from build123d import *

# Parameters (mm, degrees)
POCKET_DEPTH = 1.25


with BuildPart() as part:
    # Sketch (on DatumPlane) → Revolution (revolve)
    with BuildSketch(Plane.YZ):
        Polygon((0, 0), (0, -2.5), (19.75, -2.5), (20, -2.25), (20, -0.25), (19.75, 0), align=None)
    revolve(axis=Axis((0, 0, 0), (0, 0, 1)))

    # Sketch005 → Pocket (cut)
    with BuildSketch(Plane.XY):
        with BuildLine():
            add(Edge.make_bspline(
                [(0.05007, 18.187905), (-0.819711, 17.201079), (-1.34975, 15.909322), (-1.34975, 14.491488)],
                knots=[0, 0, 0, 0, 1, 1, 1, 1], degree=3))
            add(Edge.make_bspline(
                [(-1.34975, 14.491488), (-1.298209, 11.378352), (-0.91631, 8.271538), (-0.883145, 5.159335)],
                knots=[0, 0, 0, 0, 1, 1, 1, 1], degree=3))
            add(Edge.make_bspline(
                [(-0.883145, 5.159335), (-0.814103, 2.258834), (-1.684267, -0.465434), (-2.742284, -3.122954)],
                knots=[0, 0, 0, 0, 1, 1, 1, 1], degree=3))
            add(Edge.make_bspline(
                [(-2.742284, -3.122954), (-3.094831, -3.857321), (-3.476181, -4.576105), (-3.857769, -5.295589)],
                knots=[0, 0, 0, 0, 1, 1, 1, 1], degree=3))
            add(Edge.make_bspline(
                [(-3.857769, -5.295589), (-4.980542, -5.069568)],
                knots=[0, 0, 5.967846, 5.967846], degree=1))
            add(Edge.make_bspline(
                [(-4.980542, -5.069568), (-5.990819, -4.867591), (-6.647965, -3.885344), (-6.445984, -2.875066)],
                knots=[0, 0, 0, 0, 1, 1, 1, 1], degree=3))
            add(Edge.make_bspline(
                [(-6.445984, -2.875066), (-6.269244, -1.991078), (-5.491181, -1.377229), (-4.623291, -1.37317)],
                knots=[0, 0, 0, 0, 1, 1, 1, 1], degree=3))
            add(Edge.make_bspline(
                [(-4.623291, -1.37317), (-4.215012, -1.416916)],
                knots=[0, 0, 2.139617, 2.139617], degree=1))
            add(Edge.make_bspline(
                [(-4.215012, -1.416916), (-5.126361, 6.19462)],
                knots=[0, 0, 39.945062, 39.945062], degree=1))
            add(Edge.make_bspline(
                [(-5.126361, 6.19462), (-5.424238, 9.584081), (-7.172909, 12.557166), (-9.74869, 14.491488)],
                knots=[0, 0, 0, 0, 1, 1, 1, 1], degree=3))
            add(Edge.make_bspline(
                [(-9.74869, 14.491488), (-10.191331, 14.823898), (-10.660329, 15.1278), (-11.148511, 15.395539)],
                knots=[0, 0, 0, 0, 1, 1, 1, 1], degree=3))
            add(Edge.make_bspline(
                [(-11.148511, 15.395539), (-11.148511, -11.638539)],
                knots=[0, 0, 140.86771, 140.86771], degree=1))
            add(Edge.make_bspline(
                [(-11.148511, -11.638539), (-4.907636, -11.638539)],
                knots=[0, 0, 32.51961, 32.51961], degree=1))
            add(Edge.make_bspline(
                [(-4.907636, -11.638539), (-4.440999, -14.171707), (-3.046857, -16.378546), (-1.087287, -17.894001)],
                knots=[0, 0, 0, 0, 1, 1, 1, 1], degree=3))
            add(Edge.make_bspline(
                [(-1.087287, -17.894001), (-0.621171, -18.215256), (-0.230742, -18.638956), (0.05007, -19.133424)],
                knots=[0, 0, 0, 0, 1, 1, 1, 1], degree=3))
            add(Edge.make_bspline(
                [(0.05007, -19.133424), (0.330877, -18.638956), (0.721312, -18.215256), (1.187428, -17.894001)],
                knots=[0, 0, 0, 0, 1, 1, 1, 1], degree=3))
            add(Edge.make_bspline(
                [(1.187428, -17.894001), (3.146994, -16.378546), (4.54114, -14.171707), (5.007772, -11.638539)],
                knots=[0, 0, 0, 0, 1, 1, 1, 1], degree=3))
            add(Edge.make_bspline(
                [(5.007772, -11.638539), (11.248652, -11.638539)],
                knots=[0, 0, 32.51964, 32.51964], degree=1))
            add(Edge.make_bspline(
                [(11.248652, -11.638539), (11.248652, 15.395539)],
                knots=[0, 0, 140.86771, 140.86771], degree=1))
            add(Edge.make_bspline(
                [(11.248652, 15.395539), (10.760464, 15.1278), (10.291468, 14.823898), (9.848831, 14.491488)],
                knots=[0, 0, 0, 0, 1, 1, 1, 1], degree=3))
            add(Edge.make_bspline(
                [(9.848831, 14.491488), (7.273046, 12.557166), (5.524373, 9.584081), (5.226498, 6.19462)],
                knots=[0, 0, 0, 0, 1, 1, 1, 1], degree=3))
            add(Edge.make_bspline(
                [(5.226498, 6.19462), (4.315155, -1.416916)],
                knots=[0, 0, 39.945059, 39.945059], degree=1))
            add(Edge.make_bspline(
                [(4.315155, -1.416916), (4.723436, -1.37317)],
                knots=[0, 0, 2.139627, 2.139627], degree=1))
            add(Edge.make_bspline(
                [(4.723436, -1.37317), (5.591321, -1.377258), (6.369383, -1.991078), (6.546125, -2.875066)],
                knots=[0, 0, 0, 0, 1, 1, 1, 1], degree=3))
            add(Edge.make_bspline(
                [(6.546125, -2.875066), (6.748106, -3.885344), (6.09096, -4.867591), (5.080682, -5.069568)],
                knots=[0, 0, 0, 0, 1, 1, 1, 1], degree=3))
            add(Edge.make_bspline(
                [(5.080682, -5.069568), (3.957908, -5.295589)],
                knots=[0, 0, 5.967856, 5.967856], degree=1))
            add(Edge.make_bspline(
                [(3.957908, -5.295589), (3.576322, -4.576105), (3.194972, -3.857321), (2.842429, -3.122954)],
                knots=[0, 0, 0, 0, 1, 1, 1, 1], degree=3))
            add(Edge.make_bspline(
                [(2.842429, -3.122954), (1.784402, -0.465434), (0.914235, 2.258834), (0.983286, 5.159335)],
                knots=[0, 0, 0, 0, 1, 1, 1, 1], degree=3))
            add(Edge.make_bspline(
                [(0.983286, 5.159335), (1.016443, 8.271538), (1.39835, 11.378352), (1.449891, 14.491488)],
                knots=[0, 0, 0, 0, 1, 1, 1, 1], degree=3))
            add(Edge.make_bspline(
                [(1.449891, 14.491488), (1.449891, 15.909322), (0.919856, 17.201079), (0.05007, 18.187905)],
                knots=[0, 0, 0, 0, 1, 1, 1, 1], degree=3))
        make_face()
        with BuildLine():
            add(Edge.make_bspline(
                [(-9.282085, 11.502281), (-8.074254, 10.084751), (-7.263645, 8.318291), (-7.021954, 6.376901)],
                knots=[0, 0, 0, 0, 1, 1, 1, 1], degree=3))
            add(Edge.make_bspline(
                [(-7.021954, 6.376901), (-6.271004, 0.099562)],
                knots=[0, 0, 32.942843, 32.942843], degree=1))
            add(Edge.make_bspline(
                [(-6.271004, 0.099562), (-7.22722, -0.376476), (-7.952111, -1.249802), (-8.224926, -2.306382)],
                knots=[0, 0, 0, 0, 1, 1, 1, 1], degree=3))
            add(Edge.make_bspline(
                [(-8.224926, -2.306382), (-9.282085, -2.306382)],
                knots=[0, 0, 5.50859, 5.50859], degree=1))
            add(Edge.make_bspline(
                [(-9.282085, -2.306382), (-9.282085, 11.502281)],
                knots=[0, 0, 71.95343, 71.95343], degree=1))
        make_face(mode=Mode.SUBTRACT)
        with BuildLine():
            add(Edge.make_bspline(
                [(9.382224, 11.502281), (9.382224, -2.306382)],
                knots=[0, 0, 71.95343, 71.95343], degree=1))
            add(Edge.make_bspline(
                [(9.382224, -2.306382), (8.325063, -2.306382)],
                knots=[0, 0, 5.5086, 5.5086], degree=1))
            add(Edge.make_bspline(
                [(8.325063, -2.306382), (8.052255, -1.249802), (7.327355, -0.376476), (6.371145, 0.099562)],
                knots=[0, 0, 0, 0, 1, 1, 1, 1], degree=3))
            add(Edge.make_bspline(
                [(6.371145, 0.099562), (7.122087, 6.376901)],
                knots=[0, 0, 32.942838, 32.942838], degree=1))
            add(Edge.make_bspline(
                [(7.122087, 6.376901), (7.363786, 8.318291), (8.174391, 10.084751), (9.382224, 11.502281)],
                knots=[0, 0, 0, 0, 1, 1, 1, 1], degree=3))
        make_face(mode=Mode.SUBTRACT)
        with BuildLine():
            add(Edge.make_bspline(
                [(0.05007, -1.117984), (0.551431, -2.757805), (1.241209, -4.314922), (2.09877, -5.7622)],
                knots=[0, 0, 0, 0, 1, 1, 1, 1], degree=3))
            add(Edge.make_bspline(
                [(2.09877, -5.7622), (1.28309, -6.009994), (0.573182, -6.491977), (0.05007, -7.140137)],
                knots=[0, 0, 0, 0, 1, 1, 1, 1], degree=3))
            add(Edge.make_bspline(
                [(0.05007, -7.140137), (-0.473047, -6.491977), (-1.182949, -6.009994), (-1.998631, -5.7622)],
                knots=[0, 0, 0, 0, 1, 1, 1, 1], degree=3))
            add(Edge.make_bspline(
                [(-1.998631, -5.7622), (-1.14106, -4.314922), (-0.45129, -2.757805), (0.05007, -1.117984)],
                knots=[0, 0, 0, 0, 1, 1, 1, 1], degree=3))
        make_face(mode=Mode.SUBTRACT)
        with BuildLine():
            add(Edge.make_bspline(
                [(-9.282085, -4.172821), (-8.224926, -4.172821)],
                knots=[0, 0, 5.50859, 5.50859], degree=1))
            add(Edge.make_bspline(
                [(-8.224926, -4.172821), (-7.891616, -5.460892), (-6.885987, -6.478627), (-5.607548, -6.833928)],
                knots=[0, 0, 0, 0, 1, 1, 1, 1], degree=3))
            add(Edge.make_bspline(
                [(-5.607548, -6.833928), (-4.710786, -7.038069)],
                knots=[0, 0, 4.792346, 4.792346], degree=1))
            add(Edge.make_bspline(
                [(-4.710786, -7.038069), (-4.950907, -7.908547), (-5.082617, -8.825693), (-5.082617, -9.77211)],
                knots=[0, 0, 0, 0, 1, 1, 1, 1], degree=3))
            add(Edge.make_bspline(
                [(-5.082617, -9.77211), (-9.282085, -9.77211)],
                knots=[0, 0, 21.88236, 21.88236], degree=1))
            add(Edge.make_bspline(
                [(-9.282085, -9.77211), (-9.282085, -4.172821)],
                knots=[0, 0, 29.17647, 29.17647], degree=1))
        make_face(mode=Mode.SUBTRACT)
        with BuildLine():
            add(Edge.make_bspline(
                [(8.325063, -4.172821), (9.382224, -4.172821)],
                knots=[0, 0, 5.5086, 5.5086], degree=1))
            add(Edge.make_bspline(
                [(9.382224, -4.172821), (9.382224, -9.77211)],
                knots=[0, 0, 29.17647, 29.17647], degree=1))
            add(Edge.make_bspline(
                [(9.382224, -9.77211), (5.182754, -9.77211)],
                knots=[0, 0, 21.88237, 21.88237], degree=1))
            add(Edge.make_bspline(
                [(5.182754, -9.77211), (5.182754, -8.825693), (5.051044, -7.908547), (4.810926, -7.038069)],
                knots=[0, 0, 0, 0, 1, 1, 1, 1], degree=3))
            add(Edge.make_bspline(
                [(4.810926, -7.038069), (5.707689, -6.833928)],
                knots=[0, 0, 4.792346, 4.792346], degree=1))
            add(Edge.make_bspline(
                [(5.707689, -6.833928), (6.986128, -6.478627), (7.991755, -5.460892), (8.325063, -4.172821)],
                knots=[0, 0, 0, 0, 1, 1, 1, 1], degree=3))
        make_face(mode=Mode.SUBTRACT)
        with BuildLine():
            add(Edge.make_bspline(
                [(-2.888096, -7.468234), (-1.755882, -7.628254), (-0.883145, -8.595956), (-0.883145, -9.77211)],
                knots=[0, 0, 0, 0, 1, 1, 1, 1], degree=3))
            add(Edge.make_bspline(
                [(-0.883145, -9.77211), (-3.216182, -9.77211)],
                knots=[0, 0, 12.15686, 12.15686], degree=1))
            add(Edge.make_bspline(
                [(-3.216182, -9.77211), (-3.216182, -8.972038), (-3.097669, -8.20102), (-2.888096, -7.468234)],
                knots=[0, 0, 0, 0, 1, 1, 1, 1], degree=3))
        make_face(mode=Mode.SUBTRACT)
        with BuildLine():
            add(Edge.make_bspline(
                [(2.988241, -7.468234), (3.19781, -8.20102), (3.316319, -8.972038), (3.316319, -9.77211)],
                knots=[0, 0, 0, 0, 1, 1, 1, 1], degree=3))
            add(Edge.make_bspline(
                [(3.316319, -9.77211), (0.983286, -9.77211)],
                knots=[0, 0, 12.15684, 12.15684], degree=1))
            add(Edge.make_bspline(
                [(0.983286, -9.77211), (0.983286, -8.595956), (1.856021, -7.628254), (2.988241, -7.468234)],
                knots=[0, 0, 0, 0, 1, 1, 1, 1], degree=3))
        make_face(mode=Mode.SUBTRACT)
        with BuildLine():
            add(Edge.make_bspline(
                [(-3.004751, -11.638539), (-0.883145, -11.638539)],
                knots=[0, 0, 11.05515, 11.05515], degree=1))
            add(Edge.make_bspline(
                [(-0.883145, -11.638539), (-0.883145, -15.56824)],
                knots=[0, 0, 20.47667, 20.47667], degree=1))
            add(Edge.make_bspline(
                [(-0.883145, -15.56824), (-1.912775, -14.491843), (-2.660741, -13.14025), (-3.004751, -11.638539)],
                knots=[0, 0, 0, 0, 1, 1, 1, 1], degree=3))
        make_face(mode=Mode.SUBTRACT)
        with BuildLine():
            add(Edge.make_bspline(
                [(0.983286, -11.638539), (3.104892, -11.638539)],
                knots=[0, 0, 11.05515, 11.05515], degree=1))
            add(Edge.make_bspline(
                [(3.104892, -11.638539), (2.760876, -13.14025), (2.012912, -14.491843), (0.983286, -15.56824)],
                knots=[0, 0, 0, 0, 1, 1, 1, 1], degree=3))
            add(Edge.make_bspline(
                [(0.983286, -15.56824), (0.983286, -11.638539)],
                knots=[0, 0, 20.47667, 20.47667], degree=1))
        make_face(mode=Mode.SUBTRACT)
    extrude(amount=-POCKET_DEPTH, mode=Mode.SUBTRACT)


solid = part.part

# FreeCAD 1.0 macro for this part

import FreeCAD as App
import Part
import Sketcher

V = App.Vector
Q = App.Units.Quantity


def add_polygon(sketch, points):
    """Adds a closed chain of lines whose ends are joined by coincident constraints."""
    first, n = sketch.GeometryCount, len(points)
    for a, b in zip(points, points[1:] + points[:1]):
        sketch.addGeometry(Part.LineSegment(App.Vector(*a, 0), App.Vector(*b, 0)), False)
    for i in range(n):
        sketch.addConstraint(Sketcher.Constraint("Coincident", first + i, 2, first + (i + 1) % n, 1))

doc = App.newDocument("Part")
params = doc.addObject("Spreadsheet::Sheet", "Params")
for row, (alias, value) in enumerate([
    ("sketch1_height", "2 mm"),
    ("sketch1_height2", "2.5 mm"),
    ("revolution_angle", "360 deg"),
    ("pocket1_length", "1.25 mm"),
], start=1):
    params.set(f"A{row}", alias)
    params.set(f"B{row}", "=" + value)
    params.setAlias(f"B{row}", alias)

body = doc.addObject("PartDesign::Body", "Body")

sketch1 = body.newObject("Sketcher::SketchObject", "Sketch")
sketch1.AttachmentSupport = (doc.getObject("YZ_Plane"), [""])
sketch1.MapMode = "FlatFace"
add_polygon(sketch1, [(0, 0), (0, -2.5), (19.75, -2.5), (20, -2.25), (20, -0.25), (19.75, 0)])
sketch1.addConstraint(Sketcher.Constraint("Vertical", 0))
sketch1.addConstraint(Sketcher.Constraint("Horizontal", 1))
sketch1.addConstraint(Sketcher.Constraint("Vertical", 3))
sketch1.addConstraint(Sketcher.Constraint("Horizontal", 5))
sketch1.addConstraint(Sketcher.Constraint("Coincident", 5, 2, -1, 1))
sketch1.addConstraint(Sketcher.Constraint("Perpendicular", 2, 4))
sketch1.addConstraint(Sketcher.Constraint("Vertical", 1, 2, 4, 2))
sketch1.addConstraint(Sketcher.Constraint("Equal", 2, 4))
sketch1.addConstraint(Sketcher.Constraint("DistanceY", 3, 1, 3, 2, Q("2 mm")))
sketch1.addConstraint(Sketcher.Constraint("DistanceY", 0, 2, 0, 1, Q("2.5 mm")))
sketch1.addConstraint(Sketcher.Constraint("DistanceX", -1, 1, 2, 2, Q("20 mm")))
sketch1.setExpression("Constraints[14]", "Params.sketch1_height")
sketch1.setExpression("Constraints[15]", "Params.sketch1_height2")
revolution = body.newObject("PartDesign::Revolution", "Revolution")
revolution.Profile = sketch1
revolution.ReferenceAxis = (sketch1, ["V_Axis"])
revolution.setExpression("Angle", "Params.revolution_angle")

sketch2 = body.newObject("Sketcher::SketchObject", "Sketch001")
sketch2.AttachmentSupport = (doc.getObject("XY_Plane"), [""])
sketch2.MapMode = "FlatFace"
sketch2.addGeometry(Part.BSplineCurve([V(0.05007, 18.187905, 0), V(-0.819711, 17.201079, 0), V(-1.34975, 15.909322, 0), V(-1.34975, 14.491488, 0)], [4, 4], [0, 1], False, 3, [1, 1, 1, 1], False), False)
sketch2.addGeometry(Part.BSplineCurve([V(-1.34975, 14.491488, 0), V(-1.298209, 11.378352, 0), V(-0.91631, 8.271538, 0), V(-0.883145, 5.159335, 0)], [4, 4], [0, 1], False, 3, [1, 1, 1, 1], False), False)
sketch2.addGeometry(Part.BSplineCurve([V(-0.883145, 5.159335, 0), V(-0.814103, 2.258834, 0), V(-1.684267, -0.465434, 0), V(-2.742284, -3.122954, 0)], [4, 4], [0, 1], False, 3, [1, 1, 1, 1], False), False)
sketch2.addGeometry(Part.BSplineCurve([V(-2.742284, -3.122954, 0), V(-3.094831, -3.857321, 0), V(-3.476181, -4.576105, 0), V(-3.857769, -5.295589, 0)], [4, 4], [0, 1], False, 3, [1, 1, 1, 1], False), False)
sketch2.addGeometry(Part.BSplineCurve([V(-3.857769, -5.295589, 0), V(-4.980542, -5.069568, 0)], [2, 2], [0, 5.967846], False, 1, [1, 1], False), False)
sketch2.addGeometry(Part.BSplineCurve([V(-4.980542, -5.069568, 0), V(-5.990819, -4.867591, 0), V(-6.647965, -3.885344, 0), V(-6.445984, -2.875066, 0)], [4, 4], [0, 1], False, 3, [1, 1, 1, 1], False), False)
sketch2.addGeometry(Part.BSplineCurve([V(-6.445984, -2.875066, 0), V(-6.269244, -1.991078, 0), V(-5.491181, -1.377229, 0), V(-4.623291, -1.37317, 0)], [4, 4], [0, 1], False, 3, [1, 1, 1, 1], False), False)
sketch2.addGeometry(Part.BSplineCurve([V(-4.623291, -1.37317, 0), V(-4.215012, -1.416916, 0)], [2, 2], [0, 2.139617], False, 1, [1, 1], False), False)
sketch2.addGeometry(Part.BSplineCurve([V(-4.215012, -1.416916, 0), V(-5.126361, 6.19462, 0)], [2, 2], [0, 39.945062], False, 1, [1, 1], False), False)
sketch2.addGeometry(Part.BSplineCurve([V(-5.126361, 6.19462, 0), V(-5.424238, 9.584081, 0), V(-7.172909, 12.557166, 0), V(-9.74869, 14.491488, 0)], [4, 4], [0, 1], False, 3, [1, 1, 1, 1], False), False)
sketch2.addGeometry(Part.BSplineCurve([V(-9.74869, 14.491488, 0), V(-10.191331, 14.823898, 0), V(-10.660329, 15.1278, 0), V(-11.148511, 15.395539, 0)], [4, 4], [0, 1], False, 3, [1, 1, 1, 1], False), False)
sketch2.addGeometry(Part.BSplineCurve([V(-11.148511, 15.395539, 0), V(-11.148511, -11.638539, 0)], [2, 2], [0, 140.86771], False, 1, [1, 1], False), False)
sketch2.addGeometry(Part.BSplineCurve([V(-11.148511, -11.638539, 0), V(-4.907636, -11.638539, 0)], [2, 2], [0, 32.51961], False, 1, [1, 1], False), False)
sketch2.addGeometry(Part.BSplineCurve([V(-4.907636, -11.638539, 0), V(-4.440999, -14.171707, 0), V(-3.046857, -16.378546, 0), V(-1.087287, -17.894001, 0)], [4, 4], [0, 1], False, 3, [1, 1, 1, 1], False), False)
sketch2.addGeometry(Part.BSplineCurve([V(-1.087287, -17.894001, 0), V(-0.621171, -18.215256, 0), V(-0.230742, -18.638956, 0), V(0.05007, -19.133424, 0)], [4, 4], [0, 1], False, 3, [1, 1, 1, 1], False), False)
sketch2.addGeometry(Part.BSplineCurve([V(0.05007, -19.133424, 0), V(0.330877, -18.638956, 0), V(0.721312, -18.215256, 0), V(1.187428, -17.894001, 0)], [4, 4], [0, 1], False, 3, [1, 1, 1, 1], False), False)
sketch2.addGeometry(Part.BSplineCurve([V(1.187428, -17.894001, 0), V(3.146994, -16.378546, 0), V(4.54114, -14.171707, 0), V(5.007772, -11.638539, 0)], [4, 4], [0, 1], False, 3, [1, 1, 1, 1], False), False)
sketch2.addGeometry(Part.BSplineCurve([V(5.007772, -11.638539, 0), V(11.248652, -11.638539, 0)], [2, 2], [0, 32.51964], False, 1, [1, 1], False), False)
sketch2.addGeometry(Part.BSplineCurve([V(11.248652, -11.638539, 0), V(11.248652, 15.395539, 0)], [2, 2], [0, 140.86771], False, 1, [1, 1], False), False)
sketch2.addGeometry(Part.BSplineCurve([V(11.248652, 15.395539, 0), V(10.760464, 15.1278, 0), V(10.291468, 14.823898, 0), V(9.848831, 14.491488, 0)], [4, 4], [0, 1], False, 3, [1, 1, 1, 1], False), False)
sketch2.addGeometry(Part.BSplineCurve([V(9.848831, 14.491488, 0), V(7.273046, 12.557166, 0), V(5.524373, 9.584081, 0), V(5.226498, 6.19462, 0)], [4, 4], [0, 1], False, 3, [1, 1, 1, 1], False), False)
sketch2.addGeometry(Part.BSplineCurve([V(5.226498, 6.19462, 0), V(4.315155, -1.416916, 0)], [2, 2], [0, 39.945059], False, 1, [1, 1], False), False)
sketch2.addGeometry(Part.BSplineCurve([V(4.315155, -1.416916, 0), V(4.723436, -1.37317, 0)], [2, 2], [0, 2.139627], False, 1, [1, 1], False), False)
sketch2.addGeometry(Part.BSplineCurve([V(4.723436, -1.37317, 0), V(5.591321, -1.377258, 0), V(6.369383, -1.991078, 0), V(6.546125, -2.875066, 0)], [4, 4], [0, 1], False, 3, [1, 1, 1, 1], False), False)
sketch2.addGeometry(Part.BSplineCurve([V(6.546125, -2.875066, 0), V(6.748106, -3.885344, 0), V(6.09096, -4.867591, 0), V(5.080682, -5.069568, 0)], [4, 4], [0, 1], False, 3, [1, 1, 1, 1], False), False)
sketch2.addGeometry(Part.BSplineCurve([V(5.080682, -5.069568, 0), V(3.957908, -5.295589, 0)], [2, 2], [0, 5.967856], False, 1, [1, 1], False), False)
sketch2.addGeometry(Part.BSplineCurve([V(3.957908, -5.295589, 0), V(3.576322, -4.576105, 0), V(3.194972, -3.857321, 0), V(2.842429, -3.122954, 0)], [4, 4], [0, 1], False, 3, [1, 1, 1, 1], False), False)
sketch2.addGeometry(Part.BSplineCurve([V(2.842429, -3.122954, 0), V(1.784402, -0.465434, 0), V(0.914235, 2.258834, 0), V(0.983286, 5.159335, 0)], [4, 4], [0, 1], False, 3, [1, 1, 1, 1], False), False)
sketch2.addGeometry(Part.BSplineCurve([V(0.983286, 5.159335, 0), V(1.016443, 8.271538, 0), V(1.39835, 11.378352, 0), V(1.449891, 14.491488, 0)], [4, 4], [0, 1], False, 3, [1, 1, 1, 1], False), False)
sketch2.addGeometry(Part.BSplineCurve([V(1.449891, 14.491488, 0), V(1.449891, 15.909322, 0), V(0.919856, 17.201079, 0), V(0.05007, 18.187905, 0)], [4, 4], [0, 1], False, 3, [1, 1, 1, 1], False), False)
sketch2.addGeometry(Part.BSplineCurve([V(-0.883145, -15.56824, 0), V(-1.912775, -14.491843, 0), V(-2.660741, -13.14025, 0), V(-3.004751, -11.638539, 0)], [4, 4], [0, 1], False, 3, [1, 1, 1, 1], False), False)
sketch2.addGeometry(Part.BSplineCurve([V(-3.004751, -11.638539, 0), V(-0.883145, -11.638539, 0)], [2, 2], [0, 11.05515], False, 1, [1, 1], False), False)
sketch2.addGeometry(Part.BSplineCurve([V(-0.883145, -11.638539, 0), V(-0.883145, -15.56824, 0)], [2, 2], [0, 20.47667], False, 1, [1, 1], False), False)
sketch2.addGeometry(Part.BSplineCurve([V(-9.282085, -9.77211, 0), V(-9.282085, -4.172821, 0)], [2, 2], [0, 29.17647], False, 1, [1, 1], False), False)
sketch2.addGeometry(Part.BSplineCurve([V(-9.282085, -4.172821, 0), V(-8.224926, -4.172821, 0)], [2, 2], [0, 5.50859], False, 1, [1, 1], False), False)
sketch2.addGeometry(Part.BSplineCurve([V(-8.224926, -4.172821, 0), V(-7.891616, -5.460892, 0), V(-6.885987, -6.478627, 0), V(-5.607548, -6.833928, 0)], [4, 4], [0, 1], False, 3, [1, 1, 1, 1], False), False)
sketch2.addGeometry(Part.BSplineCurve([V(-5.607548, -6.833928, 0), V(-4.710786, -7.038069, 0)], [2, 2], [0, 4.792346], False, 1, [1, 1], False), False)
sketch2.addGeometry(Part.BSplineCurve([V(-4.710786, -7.038069, 0), V(-4.950907, -7.908547, 0), V(-5.082617, -8.825693, 0), V(-5.082617, -9.77211, 0)], [4, 4], [0, 1], False, 3, [1, 1, 1, 1], False), False)
sketch2.addGeometry(Part.BSplineCurve([V(-5.082617, -9.77211, 0), V(-9.282085, -9.77211, 0)], [2, 2], [0, 21.88236], False, 1, [1, 1], False), False)
sketch2.addGeometry(Part.BSplineCurve([V(-3.216182, -9.77211, 0), V(-3.216182, -8.972038, 0), V(-3.097669, -8.20102, 0), V(-2.888096, -7.468234, 0)], [4, 4], [0, 1], False, 3, [1, 1, 1, 1], False), False)
sketch2.addGeometry(Part.BSplineCurve([V(-2.888096, -7.468234, 0), V(-1.755882, -7.628254, 0), V(-0.883145, -8.595956, 0), V(-0.883145, -9.77211, 0)], [4, 4], [0, 1], False, 3, [1, 1, 1, 1], False), False)
sketch2.addGeometry(Part.BSplineCurve([V(-0.883145, -9.77211, 0), V(-3.216182, -9.77211, 0)], [2, 2], [0, 12.15686], False, 1, [1, 1], False), False)
sketch2.addGeometry(Part.BSplineCurve([V(-1.998631, -5.7622, 0), V(-1.14106, -4.314922, 0), V(-0.45129, -2.757805, 0), V(0.05007, -1.117984, 0)], [4, 4], [0, 1], False, 3, [1, 1, 1, 1], False), False)
sketch2.addGeometry(Part.BSplineCurve([V(0.05007, -1.117984, 0), V(0.551431, -2.757805, 0), V(1.241209, -4.314922, 0), V(2.09877, -5.7622, 0)], [4, 4], [0, 1], False, 3, [1, 1, 1, 1], False), False)
sketch2.addGeometry(Part.BSplineCurve([V(2.09877, -5.7622, 0), V(1.28309, -6.009994, 0), V(0.573182, -6.491977, 0), V(0.05007, -7.140137, 0)], [4, 4], [0, 1], False, 3, [1, 1, 1, 1], False), False)
sketch2.addGeometry(Part.BSplineCurve([V(0.05007, -7.140137, 0), V(-0.473047, -6.491977, 0), V(-1.182949, -6.009994, 0), V(-1.998631, -5.7622, 0)], [4, 4], [0, 1], False, 3, [1, 1, 1, 1], False), False)
sketch2.addGeometry(Part.BSplineCurve([V(0.983286, -15.56824, 0), V(0.983286, -11.638539, 0)], [2, 2], [0, 20.47667], False, 1, [1, 1], False), False)
sketch2.addGeometry(Part.BSplineCurve([V(0.983286, -11.638539, 0), V(3.104892, -11.638539, 0)], [2, 2], [0, 11.05515], False, 1, [1, 1], False), False)
sketch2.addGeometry(Part.BSplineCurve([V(3.104892, -11.638539, 0), V(2.760876, -13.14025, 0), V(2.012912, -14.491843, 0), V(0.983286, -15.56824, 0)], [4, 4], [0, 1], False, 3, [1, 1, 1, 1], False), False)
sketch2.addGeometry(Part.BSplineCurve([V(0.983286, -9.77211, 0), V(0.983286, -8.595956, 0), V(1.856021, -7.628254, 0), V(2.988241, -7.468234, 0)], [4, 4], [0, 1], False, 3, [1, 1, 1, 1], False), False)
sketch2.addGeometry(Part.BSplineCurve([V(2.988241, -7.468234, 0), V(3.19781, -8.20102, 0), V(3.316319, -8.972038, 0), V(3.316319, -9.77211, 0)], [4, 4], [0, 1], False, 3, [1, 1, 1, 1], False), False)
sketch2.addGeometry(Part.BSplineCurve([V(3.316319, -9.77211, 0), V(0.983286, -9.77211, 0)], [2, 2], [0, 12.15684], False, 1, [1, 1], False), False)
sketch2.addGeometry(Part.BSplineCurve([V(5.707689, -6.833928, 0), V(6.986128, -6.478627, 0), V(7.991755, -5.460892, 0), V(8.325063, -4.172821, 0)], [4, 4], [0, 1], False, 3, [1, 1, 1, 1], False), False)
sketch2.addGeometry(Part.BSplineCurve([V(8.325063, -4.172821, 0), V(9.382224, -4.172821, 0)], [2, 2], [0, 5.5086], False, 1, [1, 1], False), False)
sketch2.addGeometry(Part.BSplineCurve([V(9.382224, -4.172821, 0), V(9.382224, -9.77211, 0)], [2, 2], [0, 29.17647], False, 1, [1, 1], False), False)
sketch2.addGeometry(Part.BSplineCurve([V(9.382224, -9.77211, 0), V(5.182754, -9.77211, 0)], [2, 2], [0, 21.88237], False, 1, [1, 1], False), False)
sketch2.addGeometry(Part.BSplineCurve([V(5.182754, -9.77211, 0), V(5.182754, -8.825693, 0), V(5.051044, -7.908547, 0), V(4.810926, -7.038069, 0)], [4, 4], [0, 1], False, 3, [1, 1, 1, 1], False), False)
sketch2.addGeometry(Part.BSplineCurve([V(4.810926, -7.038069, 0), V(5.707689, -6.833928, 0)], [2, 2], [0, 4.792346], False, 1, [1, 1], False), False)
sketch2.addGeometry(Part.BSplineCurve([V(-9.282085, -2.306382, 0), V(-9.282085, 11.502281, 0)], [2, 2], [0, 71.95343], False, 1, [1, 1], False), False)
sketch2.addGeometry(Part.BSplineCurve([V(-9.282085, 11.502281, 0), V(-8.074254, 10.084751, 0), V(-7.263645, 8.318291, 0), V(-7.021954, 6.376901, 0)], [4, 4], [0, 1], False, 3, [1, 1, 1, 1], False), False)
sketch2.addGeometry(Part.BSplineCurve([V(-7.021954, 6.376901, 0), V(-6.271004, 0.099562, 0)], [2, 2], [0, 32.942843], False, 1, [1, 1], False), False)
sketch2.addGeometry(Part.BSplineCurve([V(-6.271004, 0.099562, 0), V(-7.22722, -0.376476, 0), V(-7.952111, -1.249802, 0), V(-8.224926, -2.306382, 0)], [4, 4], [0, 1], False, 3, [1, 1, 1, 1], False), False)
sketch2.addGeometry(Part.BSplineCurve([V(-8.224926, -2.306382, 0), V(-9.282085, -2.306382, 0)], [2, 2], [0, 5.50859], False, 1, [1, 1], False), False)
sketch2.addGeometry(Part.BSplineCurve([V(7.122087, 6.376901, 0), V(7.363786, 8.318291, 0), V(8.174391, 10.084751, 0), V(9.382224, 11.502281, 0)], [4, 4], [0, 1], False, 3, [1, 1, 1, 1], False), False)
sketch2.addGeometry(Part.BSplineCurve([V(9.382224, 11.502281, 0), V(9.382224, -2.306382, 0)], [2, 2], [0, 71.95343], False, 1, [1, 1], False), False)
sketch2.addGeometry(Part.BSplineCurve([V(9.382224, -2.306382, 0), V(8.325063, -2.306382, 0)], [2, 2], [0, 5.5086], False, 1, [1, 1], False), False)
sketch2.addGeometry(Part.BSplineCurve([V(8.325063, -2.306382, 0), V(8.052255, -1.249802, 0), V(7.327355, -0.376476, 0), V(6.371145, 0.099562, 0)], [4, 4], [0, 1], False, 3, [1, 1, 1, 1], False), False)
sketch2.addGeometry(Part.BSplineCurve([V(6.371145, 0.099562, 0), V(7.122087, 6.376901, 0)], [2, 2], [0, 32.942838], False, 1, [1, 1], False), False)
sketch2.addConstraint(Sketcher.Constraint("Block", 0))
sketch2.addConstraint(Sketcher.Constraint("Block", 1))
sketch2.addConstraint(Sketcher.Constraint("Block", 2))
sketch2.addConstraint(Sketcher.Constraint("Block", 3))
sketch2.addConstraint(Sketcher.Constraint("Block", 4))
sketch2.addConstraint(Sketcher.Constraint("Block", 5))
sketch2.addConstraint(Sketcher.Constraint("Block", 6))
sketch2.addConstraint(Sketcher.Constraint("Block", 7))
sketch2.addConstraint(Sketcher.Constraint("Block", 8))
sketch2.addConstraint(Sketcher.Constraint("Block", 9))
sketch2.addConstraint(Sketcher.Constraint("Block", 10))
sketch2.addConstraint(Sketcher.Constraint("Block", 11))
sketch2.addConstraint(Sketcher.Constraint("Block", 12))
sketch2.addConstraint(Sketcher.Constraint("Block", 13))
sketch2.addConstraint(Sketcher.Constraint("Block", 14))
sketch2.addConstraint(Sketcher.Constraint("Block", 15))
sketch2.addConstraint(Sketcher.Constraint("Block", 16))
sketch2.addConstraint(Sketcher.Constraint("Block", 17))
sketch2.addConstraint(Sketcher.Constraint("Block", 18))
sketch2.addConstraint(Sketcher.Constraint("Block", 19))
sketch2.addConstraint(Sketcher.Constraint("Block", 20))
sketch2.addConstraint(Sketcher.Constraint("Block", 21))
sketch2.addConstraint(Sketcher.Constraint("Block", 22))
sketch2.addConstraint(Sketcher.Constraint("Block", 23))
sketch2.addConstraint(Sketcher.Constraint("Block", 24))
sketch2.addConstraint(Sketcher.Constraint("Block", 25))
sketch2.addConstraint(Sketcher.Constraint("Block", 26))
sketch2.addConstraint(Sketcher.Constraint("Block", 27))
sketch2.addConstraint(Sketcher.Constraint("Block", 28))
sketch2.addConstraint(Sketcher.Constraint("Block", 29))
sketch2.addConstraint(Sketcher.Constraint("Block", 30))
sketch2.addConstraint(Sketcher.Constraint("Block", 31))
sketch2.addConstraint(Sketcher.Constraint("Block", 32))
sketch2.addConstraint(Sketcher.Constraint("Block", 33))
sketch2.addConstraint(Sketcher.Constraint("Block", 34))
sketch2.addConstraint(Sketcher.Constraint("Block", 35))
sketch2.addConstraint(Sketcher.Constraint("Block", 36))
sketch2.addConstraint(Sketcher.Constraint("Block", 37))
sketch2.addConstraint(Sketcher.Constraint("Block", 38))
sketch2.addConstraint(Sketcher.Constraint("Block", 39))
sketch2.addConstraint(Sketcher.Constraint("Block", 40))
sketch2.addConstraint(Sketcher.Constraint("Block", 41))
sketch2.addConstraint(Sketcher.Constraint("Block", 42))
sketch2.addConstraint(Sketcher.Constraint("Block", 43))
sketch2.addConstraint(Sketcher.Constraint("Block", 44))
sketch2.addConstraint(Sketcher.Constraint("Block", 45))
sketch2.addConstraint(Sketcher.Constraint("Block", 46))
sketch2.addConstraint(Sketcher.Constraint("Block", 47))
sketch2.addConstraint(Sketcher.Constraint("Block", 48))
sketch2.addConstraint(Sketcher.Constraint("Block", 49))
sketch2.addConstraint(Sketcher.Constraint("Block", 50))
sketch2.addConstraint(Sketcher.Constraint("Block", 51))
sketch2.addConstraint(Sketcher.Constraint("Block", 52))
sketch2.addConstraint(Sketcher.Constraint("Block", 53))
sketch2.addConstraint(Sketcher.Constraint("Block", 54))
sketch2.addConstraint(Sketcher.Constraint("Block", 55))
sketch2.addConstraint(Sketcher.Constraint("Block", 56))
sketch2.addConstraint(Sketcher.Constraint("Block", 57))
sketch2.addConstraint(Sketcher.Constraint("Block", 58))
sketch2.addConstraint(Sketcher.Constraint("Block", 59))
sketch2.addConstraint(Sketcher.Constraint("Block", 60))
sketch2.addConstraint(Sketcher.Constraint("Block", 61))
sketch2.addConstraint(Sketcher.Constraint("Block", 62))
sketch2.addConstraint(Sketcher.Constraint("Block", 63))
sketch2.addConstraint(Sketcher.Constraint("Block", 64))
sketch2.addConstraint(Sketcher.Constraint("Block", 65))
sketch2.addConstraint(Sketcher.Constraint("Block", 66))
sketch2.addConstraint(Sketcher.Constraint("Block", 67))
pocket1 = body.newObject("PartDesign::Pocket", "Pocket")
pocket1.Profile = sketch2
pocket1.setExpression("Length", "Params.pocket1_length")

doc.recompute()
